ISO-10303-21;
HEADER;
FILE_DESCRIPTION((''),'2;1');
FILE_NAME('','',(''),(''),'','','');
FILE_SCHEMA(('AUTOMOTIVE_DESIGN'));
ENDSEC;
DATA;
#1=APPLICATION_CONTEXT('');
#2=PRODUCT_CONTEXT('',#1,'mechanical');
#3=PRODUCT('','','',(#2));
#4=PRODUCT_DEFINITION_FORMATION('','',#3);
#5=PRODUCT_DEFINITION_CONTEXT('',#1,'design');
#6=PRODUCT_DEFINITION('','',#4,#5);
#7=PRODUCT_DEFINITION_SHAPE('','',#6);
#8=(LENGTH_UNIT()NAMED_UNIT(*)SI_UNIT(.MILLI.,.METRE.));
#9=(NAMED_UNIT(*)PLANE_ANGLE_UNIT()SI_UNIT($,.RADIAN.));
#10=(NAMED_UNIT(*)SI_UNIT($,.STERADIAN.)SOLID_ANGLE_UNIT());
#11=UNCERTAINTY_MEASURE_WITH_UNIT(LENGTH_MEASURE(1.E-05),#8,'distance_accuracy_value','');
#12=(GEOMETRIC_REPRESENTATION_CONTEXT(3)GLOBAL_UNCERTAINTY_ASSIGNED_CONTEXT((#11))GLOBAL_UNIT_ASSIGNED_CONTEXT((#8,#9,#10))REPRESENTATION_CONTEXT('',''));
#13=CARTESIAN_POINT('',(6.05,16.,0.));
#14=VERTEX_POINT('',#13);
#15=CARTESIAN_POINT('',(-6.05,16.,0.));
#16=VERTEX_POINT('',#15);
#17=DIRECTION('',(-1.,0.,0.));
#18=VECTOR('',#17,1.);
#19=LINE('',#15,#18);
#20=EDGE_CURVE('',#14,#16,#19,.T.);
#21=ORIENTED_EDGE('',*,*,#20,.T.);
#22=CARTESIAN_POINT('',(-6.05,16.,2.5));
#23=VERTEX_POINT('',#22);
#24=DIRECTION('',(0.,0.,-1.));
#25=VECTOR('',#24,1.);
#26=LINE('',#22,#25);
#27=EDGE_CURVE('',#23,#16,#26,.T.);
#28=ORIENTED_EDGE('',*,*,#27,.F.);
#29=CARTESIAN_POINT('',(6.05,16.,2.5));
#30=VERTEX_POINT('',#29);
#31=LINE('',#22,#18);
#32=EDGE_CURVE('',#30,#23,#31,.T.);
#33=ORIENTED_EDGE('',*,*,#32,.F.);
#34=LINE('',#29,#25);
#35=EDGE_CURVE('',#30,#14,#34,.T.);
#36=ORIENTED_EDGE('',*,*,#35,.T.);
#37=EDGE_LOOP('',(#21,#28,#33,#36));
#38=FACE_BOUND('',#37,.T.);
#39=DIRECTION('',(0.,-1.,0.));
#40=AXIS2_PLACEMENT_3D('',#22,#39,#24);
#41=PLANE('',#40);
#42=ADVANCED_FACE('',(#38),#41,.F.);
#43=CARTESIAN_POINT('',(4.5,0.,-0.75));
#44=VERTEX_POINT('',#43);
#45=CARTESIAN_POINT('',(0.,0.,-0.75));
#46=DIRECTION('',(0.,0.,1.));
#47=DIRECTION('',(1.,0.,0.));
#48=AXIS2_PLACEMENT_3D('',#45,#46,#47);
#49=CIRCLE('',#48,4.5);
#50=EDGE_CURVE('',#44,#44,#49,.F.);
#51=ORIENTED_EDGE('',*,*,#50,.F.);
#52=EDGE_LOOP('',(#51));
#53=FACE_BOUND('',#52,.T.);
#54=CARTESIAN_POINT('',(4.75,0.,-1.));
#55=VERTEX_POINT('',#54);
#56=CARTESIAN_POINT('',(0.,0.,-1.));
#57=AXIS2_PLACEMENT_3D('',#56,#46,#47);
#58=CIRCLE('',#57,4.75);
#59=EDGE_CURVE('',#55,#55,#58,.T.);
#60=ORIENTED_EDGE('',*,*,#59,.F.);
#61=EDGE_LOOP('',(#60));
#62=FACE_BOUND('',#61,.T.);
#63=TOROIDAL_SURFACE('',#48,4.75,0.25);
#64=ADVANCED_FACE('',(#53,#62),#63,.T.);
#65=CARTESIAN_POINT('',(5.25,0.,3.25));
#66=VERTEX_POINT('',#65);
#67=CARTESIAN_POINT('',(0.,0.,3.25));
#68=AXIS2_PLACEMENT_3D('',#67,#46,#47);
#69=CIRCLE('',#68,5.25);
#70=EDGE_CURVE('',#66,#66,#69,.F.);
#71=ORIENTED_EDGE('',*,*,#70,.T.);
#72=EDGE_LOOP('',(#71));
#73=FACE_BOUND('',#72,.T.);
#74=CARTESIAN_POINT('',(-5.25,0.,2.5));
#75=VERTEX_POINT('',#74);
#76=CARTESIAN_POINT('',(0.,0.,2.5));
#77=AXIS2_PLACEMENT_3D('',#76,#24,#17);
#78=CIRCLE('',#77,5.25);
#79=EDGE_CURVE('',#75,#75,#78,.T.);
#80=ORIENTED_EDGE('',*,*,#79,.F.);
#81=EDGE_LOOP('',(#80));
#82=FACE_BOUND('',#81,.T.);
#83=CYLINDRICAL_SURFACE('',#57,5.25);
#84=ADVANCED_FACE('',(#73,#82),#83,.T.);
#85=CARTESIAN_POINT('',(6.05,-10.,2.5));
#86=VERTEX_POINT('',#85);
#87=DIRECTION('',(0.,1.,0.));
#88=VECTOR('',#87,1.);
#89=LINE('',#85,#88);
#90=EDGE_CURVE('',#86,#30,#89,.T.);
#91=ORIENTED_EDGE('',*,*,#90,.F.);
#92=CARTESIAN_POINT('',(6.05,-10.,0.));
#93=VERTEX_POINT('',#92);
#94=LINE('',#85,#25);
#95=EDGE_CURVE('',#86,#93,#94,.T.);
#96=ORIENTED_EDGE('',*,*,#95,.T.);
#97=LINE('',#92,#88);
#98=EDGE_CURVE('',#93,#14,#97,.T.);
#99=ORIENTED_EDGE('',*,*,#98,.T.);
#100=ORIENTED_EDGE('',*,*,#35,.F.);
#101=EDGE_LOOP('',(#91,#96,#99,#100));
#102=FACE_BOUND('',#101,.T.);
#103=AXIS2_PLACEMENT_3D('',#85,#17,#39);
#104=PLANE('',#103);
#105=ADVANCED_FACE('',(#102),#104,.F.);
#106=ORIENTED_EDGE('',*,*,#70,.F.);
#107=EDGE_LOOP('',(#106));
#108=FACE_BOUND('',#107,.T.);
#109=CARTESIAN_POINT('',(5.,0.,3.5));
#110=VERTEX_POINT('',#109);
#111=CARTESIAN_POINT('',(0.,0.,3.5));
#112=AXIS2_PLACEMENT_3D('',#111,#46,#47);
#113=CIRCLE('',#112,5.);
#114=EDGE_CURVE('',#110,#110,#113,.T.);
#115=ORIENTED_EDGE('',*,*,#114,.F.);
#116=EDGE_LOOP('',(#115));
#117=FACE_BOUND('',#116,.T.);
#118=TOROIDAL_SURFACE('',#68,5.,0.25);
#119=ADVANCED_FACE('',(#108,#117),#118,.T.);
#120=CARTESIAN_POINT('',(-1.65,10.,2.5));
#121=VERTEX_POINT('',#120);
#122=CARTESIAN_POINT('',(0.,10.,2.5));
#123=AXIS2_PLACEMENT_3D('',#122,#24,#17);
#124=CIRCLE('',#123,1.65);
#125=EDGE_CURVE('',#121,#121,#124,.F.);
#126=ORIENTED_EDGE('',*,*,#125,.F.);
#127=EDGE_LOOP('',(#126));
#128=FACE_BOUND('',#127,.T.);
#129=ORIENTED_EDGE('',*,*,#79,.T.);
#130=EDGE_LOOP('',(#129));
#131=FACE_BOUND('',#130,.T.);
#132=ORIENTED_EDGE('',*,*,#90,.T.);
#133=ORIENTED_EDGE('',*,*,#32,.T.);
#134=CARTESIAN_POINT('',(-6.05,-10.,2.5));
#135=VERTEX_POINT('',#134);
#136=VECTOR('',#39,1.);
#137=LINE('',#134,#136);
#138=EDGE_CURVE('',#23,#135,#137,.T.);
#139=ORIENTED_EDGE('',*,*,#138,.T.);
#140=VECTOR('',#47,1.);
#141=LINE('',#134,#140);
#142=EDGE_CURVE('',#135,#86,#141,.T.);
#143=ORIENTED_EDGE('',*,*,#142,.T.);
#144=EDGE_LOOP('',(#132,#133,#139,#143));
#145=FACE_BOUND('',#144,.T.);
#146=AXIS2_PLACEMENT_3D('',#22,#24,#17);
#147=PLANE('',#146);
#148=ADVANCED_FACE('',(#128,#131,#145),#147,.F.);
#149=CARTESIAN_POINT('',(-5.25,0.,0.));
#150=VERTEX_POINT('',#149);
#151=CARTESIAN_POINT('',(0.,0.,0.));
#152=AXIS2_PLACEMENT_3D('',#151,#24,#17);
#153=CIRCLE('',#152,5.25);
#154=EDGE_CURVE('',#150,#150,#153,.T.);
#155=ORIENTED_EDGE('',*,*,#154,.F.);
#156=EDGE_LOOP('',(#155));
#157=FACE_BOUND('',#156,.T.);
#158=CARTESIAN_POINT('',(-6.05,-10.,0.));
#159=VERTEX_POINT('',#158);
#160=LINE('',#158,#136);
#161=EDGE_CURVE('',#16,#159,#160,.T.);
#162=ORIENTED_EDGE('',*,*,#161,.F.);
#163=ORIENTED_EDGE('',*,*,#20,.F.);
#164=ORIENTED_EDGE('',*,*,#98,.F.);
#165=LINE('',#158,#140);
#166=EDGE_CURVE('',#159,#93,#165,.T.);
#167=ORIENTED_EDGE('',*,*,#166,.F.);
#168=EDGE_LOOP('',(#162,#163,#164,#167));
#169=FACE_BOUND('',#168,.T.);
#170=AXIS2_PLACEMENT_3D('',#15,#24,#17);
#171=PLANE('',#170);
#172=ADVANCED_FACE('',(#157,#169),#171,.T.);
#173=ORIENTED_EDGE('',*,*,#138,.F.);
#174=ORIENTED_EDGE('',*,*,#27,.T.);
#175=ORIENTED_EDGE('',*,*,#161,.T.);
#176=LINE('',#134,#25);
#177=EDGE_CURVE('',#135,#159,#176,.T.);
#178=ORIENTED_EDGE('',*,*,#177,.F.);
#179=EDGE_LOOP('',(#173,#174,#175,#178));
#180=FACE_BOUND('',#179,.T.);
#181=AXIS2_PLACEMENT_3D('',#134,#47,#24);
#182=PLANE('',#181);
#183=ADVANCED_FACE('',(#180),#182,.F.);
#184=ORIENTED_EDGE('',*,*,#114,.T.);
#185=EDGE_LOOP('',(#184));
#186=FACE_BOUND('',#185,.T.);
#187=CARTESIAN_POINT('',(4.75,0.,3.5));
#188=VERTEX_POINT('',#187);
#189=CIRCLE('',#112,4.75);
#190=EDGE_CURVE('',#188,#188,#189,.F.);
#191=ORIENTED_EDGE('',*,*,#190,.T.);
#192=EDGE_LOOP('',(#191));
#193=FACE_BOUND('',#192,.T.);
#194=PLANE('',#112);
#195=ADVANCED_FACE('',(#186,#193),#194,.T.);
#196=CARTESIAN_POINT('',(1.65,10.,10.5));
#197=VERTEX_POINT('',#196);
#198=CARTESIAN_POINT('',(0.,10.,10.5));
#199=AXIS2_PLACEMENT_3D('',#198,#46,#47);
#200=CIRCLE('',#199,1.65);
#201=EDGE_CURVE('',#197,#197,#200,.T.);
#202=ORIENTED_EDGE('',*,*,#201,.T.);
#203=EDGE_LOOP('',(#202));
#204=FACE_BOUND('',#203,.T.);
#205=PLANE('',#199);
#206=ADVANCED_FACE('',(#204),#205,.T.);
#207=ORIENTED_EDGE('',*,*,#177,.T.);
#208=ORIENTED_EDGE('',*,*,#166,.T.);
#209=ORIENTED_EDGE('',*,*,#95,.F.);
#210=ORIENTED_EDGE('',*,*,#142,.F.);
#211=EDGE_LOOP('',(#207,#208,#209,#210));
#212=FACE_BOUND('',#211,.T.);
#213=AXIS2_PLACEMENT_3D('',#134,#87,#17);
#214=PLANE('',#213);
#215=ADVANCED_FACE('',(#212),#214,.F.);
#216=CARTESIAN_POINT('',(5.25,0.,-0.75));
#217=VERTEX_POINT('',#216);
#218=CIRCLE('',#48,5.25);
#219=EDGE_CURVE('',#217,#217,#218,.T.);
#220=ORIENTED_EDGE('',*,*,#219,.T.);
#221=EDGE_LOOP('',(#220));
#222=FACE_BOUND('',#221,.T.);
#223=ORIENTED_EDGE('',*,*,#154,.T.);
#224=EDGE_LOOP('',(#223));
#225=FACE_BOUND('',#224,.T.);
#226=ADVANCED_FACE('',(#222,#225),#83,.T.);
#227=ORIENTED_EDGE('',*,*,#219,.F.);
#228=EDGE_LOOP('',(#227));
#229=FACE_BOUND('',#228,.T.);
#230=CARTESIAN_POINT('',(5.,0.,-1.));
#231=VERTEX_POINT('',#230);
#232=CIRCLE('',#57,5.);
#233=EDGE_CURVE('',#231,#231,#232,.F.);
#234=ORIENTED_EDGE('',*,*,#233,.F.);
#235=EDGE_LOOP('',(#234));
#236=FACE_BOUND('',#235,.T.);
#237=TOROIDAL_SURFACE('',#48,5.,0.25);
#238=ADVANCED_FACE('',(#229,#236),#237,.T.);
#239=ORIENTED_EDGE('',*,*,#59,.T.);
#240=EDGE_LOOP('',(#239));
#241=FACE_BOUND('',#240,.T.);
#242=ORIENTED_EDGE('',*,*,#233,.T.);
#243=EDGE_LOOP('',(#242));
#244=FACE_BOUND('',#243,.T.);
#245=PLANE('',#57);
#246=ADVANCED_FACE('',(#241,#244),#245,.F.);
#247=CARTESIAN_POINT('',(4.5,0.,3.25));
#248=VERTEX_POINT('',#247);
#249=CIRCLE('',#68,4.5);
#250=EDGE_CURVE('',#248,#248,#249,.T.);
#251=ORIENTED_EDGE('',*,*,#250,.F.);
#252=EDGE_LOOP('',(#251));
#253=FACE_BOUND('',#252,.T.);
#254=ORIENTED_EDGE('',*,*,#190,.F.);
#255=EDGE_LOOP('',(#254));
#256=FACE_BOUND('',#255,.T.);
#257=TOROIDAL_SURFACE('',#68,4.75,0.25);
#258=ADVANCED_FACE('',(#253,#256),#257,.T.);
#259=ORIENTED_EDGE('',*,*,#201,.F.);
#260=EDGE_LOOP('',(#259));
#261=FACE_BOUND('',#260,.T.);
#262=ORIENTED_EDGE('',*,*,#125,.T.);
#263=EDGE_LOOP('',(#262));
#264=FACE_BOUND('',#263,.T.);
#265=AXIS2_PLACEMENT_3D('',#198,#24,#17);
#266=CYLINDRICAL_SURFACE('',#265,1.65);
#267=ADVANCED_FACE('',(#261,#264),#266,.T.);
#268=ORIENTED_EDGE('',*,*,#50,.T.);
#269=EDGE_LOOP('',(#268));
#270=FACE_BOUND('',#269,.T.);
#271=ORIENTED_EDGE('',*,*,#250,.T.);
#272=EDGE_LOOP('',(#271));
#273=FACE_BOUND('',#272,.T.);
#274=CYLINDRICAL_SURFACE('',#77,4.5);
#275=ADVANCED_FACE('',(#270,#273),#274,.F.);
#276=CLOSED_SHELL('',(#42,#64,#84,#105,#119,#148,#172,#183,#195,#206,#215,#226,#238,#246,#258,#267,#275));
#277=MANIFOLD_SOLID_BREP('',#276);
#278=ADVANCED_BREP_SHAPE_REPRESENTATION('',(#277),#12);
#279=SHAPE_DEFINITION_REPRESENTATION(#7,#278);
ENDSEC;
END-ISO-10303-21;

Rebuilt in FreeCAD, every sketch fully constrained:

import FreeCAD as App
import Part
import Sketcher

V = App.Vector


def edges_at(feature, points):
    """Names of the edges that pass closest to the given points."""
    edges = feature.Shape.Edges
    near = lambda p: min(range(len(edges)), key=lambda i: edges[i].distToShape(Part.Vertex(*p))[0])
    return sorted({f"Edge{near(p) + 1}" for p in points})

doc = App.newDocument("Part")
body = doc.addObject("PartDesign::Body", "Body")

# Sketch on XY plane
sketch1 = doc.addObject("Sketcher::SketchObject", "Sketch")
body.addObject(sketch1)
sketch1.AttachmentSupport = (doc.XY_Plane, [""])
sketch1.MapMode = "FlatFace"
sketch1.addGeometry([
    Part.LineSegment(V(-6, 16, 0), V(-6, -10, 0)),  # 0
    Part.LineSegment(V(-6, -10, 0), V(6, -10, 0)),  # 1
    Part.LineSegment(V(6, -10, 0), V(6, 16, 0)),  # 2
    Part.LineSegment(V(6, 16, 0), V(-6, 16, 0)),  # 3
    Part.Circle(V(0, 0, 0), V(0, 0, 1), 4.5),  # 4
], False)
sketch1.addConstraint([
    Sketcher.Constraint("Coincident", 0, 2, 1, 1),
    Sketcher.Constraint("Coincident", 1, 2, 2, 1),
    Sketcher.Constraint("Coincident", 2, 2, 3, 1),
    Sketcher.Constraint("Coincident", 3, 2, 0, 1),
    Sketcher.Constraint("Vertical", 0),
    Sketcher.Constraint("Horizontal", 1),
    Sketcher.Constraint("Vertical", 2),
    Sketcher.Constraint("Horizontal", 3),
    Sketcher.Constraint("Coincident", 4, 3, -1, 1),
    Sketcher.Constraint("Diameter", 4, 9.0),
    Sketcher.Constraint("DistanceY", 0, 2, 0, 1, 26.0),
    Sketcher.Constraint("DistanceX", 1, 1, 1, 2, 12.1),
    Sketcher.Constraint("DistanceY", 0, 2, -1, 1, 10.0),
    Sketcher.Constraint("DistanceX", 0, 2, -1, 1, 6.05),
])
pad1 = doc.addObject("PartDesign::Pad", "Pad")
body.addObject(pad1)
pad1.Profile = sketch1
pad1.Length = 2.5

# Sketch on XY plane
sketch2 = doc.addObject("Sketcher::SketchObject", "Sketch001")
body.addObject(sketch2)
sketch2.AttachmentSupport = (doc.XY_Plane, [""])
sketch2.MapMode = "FlatFace"
sketch2.AttachmentOffset = App.Placement(V(0, 0, 2.5), App.Rotation())
sketch2.addGeometry(Part.Circle(V(0, 10, 0), V(0, 0, 1), 1.6), False)
sketch2.addConstraint([
    Sketcher.Constraint("PointOnObject", 0, 3, -2),
    Sketcher.Constraint("Diameter", 0, 3.3),
    Sketcher.Constraint("DistanceY", -1, 1, 0, 3, 10.0),
])
pad2 = doc.addObject("PartDesign::Pad", "Pad001")
body.addObject(pad2)
pad2.Profile = sketch2
pad2.Length = 8

# Sketch on XY plane
sketch3 = doc.addObject("Sketcher::SketchObject", "Sketch002")
body.addObject(sketch3)
sketch3.AttachmentSupport = (doc.XY_Plane, [""])
sketch3.MapMode = "FlatFace"
sketch3.AttachmentOffset = App.Placement(V(0, 0, 2.5), App.Rotation())
sketch3.addGeometry([
    Part.Circle(V(0, 0, 0), V(0, 0, 1), 5.2),
    Part.Circle(V(0, 0, 0), V(0, 0, 1), 4.5),
], False)
sketch3.addConstraint([
    Sketcher.Constraint("Coincident", 0, 3, -1, 1),
    Sketcher.Constraint("Coincident", 1, 3, -1, 1),
    Sketcher.Constraint("Diameter", 1, 9.0),
    Sketcher.Constraint("Diameter", 0, 10.5),
])
pad3 = doc.addObject("PartDesign::Pad", "Pad002")
body.addObject(pad3)
pad3.Profile = sketch3
pad3.Type = "TwoLengths"
pad3.Length = 1
pad3.Length2 = 3.5
doc.recompute()

fillet = doc.addObject("PartDesign::Fillet", "Fillet")
body.addObject(fillet)
fillet.Base = (pad3, edges_at(pad3, [
    (-4.5, 0, 3.5),
    (-5.25, 0, -1),
    (-4.5, 0, -1),
    (-5.25, 0, 3.5),
]))
fillet.Radius = 0.25

doc.recompute()
